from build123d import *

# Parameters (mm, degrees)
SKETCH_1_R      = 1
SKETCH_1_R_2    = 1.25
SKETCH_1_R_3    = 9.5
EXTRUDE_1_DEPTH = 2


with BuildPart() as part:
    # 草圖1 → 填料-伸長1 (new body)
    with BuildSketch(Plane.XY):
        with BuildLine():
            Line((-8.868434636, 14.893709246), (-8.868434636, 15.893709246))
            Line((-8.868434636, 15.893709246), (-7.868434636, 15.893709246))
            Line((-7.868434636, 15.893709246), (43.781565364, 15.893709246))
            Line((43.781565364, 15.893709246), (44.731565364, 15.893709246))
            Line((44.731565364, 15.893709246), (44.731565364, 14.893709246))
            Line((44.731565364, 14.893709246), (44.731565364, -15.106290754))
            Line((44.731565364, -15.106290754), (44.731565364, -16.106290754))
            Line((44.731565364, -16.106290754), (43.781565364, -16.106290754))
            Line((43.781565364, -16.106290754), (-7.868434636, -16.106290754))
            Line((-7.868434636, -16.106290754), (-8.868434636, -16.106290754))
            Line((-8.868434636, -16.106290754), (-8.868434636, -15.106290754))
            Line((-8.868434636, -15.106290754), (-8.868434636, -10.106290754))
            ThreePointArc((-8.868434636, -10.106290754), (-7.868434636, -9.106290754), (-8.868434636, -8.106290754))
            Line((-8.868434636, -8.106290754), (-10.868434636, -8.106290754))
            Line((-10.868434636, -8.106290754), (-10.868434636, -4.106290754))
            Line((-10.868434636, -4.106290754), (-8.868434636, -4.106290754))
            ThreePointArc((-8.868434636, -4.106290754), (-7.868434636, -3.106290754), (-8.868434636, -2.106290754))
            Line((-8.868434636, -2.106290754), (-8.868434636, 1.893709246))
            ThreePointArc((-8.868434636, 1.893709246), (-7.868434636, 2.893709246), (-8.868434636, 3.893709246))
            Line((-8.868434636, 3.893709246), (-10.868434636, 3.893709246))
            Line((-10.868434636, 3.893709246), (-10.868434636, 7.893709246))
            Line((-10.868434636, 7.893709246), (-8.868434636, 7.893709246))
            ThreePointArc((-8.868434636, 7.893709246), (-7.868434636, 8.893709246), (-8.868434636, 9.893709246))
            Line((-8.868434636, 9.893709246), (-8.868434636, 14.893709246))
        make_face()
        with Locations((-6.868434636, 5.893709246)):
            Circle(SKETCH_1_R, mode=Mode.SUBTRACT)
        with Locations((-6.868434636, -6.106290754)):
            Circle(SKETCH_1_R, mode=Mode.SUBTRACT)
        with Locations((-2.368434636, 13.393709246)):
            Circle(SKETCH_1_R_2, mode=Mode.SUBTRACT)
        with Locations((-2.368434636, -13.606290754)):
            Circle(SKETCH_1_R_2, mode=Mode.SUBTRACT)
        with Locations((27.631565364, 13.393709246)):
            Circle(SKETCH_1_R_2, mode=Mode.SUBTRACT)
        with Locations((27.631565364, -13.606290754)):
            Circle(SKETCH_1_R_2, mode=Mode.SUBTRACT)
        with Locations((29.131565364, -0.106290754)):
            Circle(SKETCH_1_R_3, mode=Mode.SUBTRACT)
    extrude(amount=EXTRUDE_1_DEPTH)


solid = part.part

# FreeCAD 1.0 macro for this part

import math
import FreeCAD as App
import Part
import Sketcher
from FreeCAD import Vector

doc = App.newDocument("Part")
body = doc.addObject("PartDesign::Body", "Body")

# Sketch on XY plane
sketch1 = body.newObject("Sketcher::SketchObject", "Sketch")
sketch1.AttachmentSupport = (doc.getObject("XY_Plane"), [""])
sketch1.MapMode = "FlatFace"
sketch1.addGeometry(Part.LineSegment(Vector(44.7, 15.9, 0), Vector(-8.9, 15.9, 0)), False)
sketch1.addGeometry(Part.LineSegment(Vector(-8.9, 15.9, 0), Vector(-8.9, 9.9, 0)), False)
sketch1.addGeometry(Part.ArcOfCircle(Part.Circle(Vector(-8.9, 8.9, 0), Vector(0, 0, 1), 1), math.radians(-90), math.radians(90)), False)
sketch1.addGeometry(Part.LineSegment(Vector(-8.9, 7.9, 0), Vector(-10.9, 7.9, 0)), False)
sketch1.addGeometry(Part.LineSegment(Vector(-10.9, 7.9, 0), Vector(-10.9, 3.9, 0)), False)
sketch1.addGeometry(Part.LineSegment(Vector(-10.9, 3.9, 0), Vector(-8.9, 3.9, 0)), False)
sketch1.addGeometry(Part.ArcOfCircle(Part.Circle(Vector(-8.9, 2.9, 0), Vector(0, 0, 1), 1), math.radians(-90), math.radians(90)), False)
sketch1.addGeometry(Part.LineSegment(Vector(-8.9, 1.9, 0), Vector(-8.9, -2.1, 0)), False)
sketch1.addGeometry(Part.ArcOfCircle(Part.Circle(Vector(-8.9, -3.1, 0), Vector(0, 0, 1), 1), math.radians(-90), math.radians(90)), False)
sketch1.addGeometry(Part.LineSegment(Vector(-8.9, -4.1, 0), Vector(-10.9, -4.1, 0)), False)
sketch1.addGeometry(Part.LineSegment(Vector(-10.9, -4.1, 0), Vector(-10.9, -8.1, 0)), False)
sketch1.addGeometry(Part.LineSegment(Vector(-10.9, -8.1, 0), Vector(-8.9, -8.1, 0)), False)
sketch1.addGeometry(Part.ArcOfCircle(Part.Circle(Vector(-8.9, -9.1, 0), Vector(0, 0, 1), 1), math.radians(-90), math.radians(90)), False)
sketch1.addGeometry(Part.LineSegment(Vector(-8.9, -10.1, 0), Vector(-8.9, -16.1, 0)), False)
sketch1.addGeometry(Part.LineSegment(Vector(-8.9, -16.1, 0), Vector(44.7, -16.1, 0)), False)
sketch1.addGeometry(Part.LineSegment(Vector(44.7, -16.1, 0), Vector(44.7, 15.9, 0)), False)
sketch1.addGeometry(Part.Circle(Vector(27.6, -13.6, 0), Vector(0, 0, 1), 1.2), False)
sketch1.addGeometry(Part.Circle(Vector(-2.4, -13.6, 0), Vector(0, 0, 1), 1.2), False)
sketch1.addGeometry(Part.Circle(Vector(-6.9, -6.1, 0), Vector(0, 0, 1), 1), False)
sketch1.addGeometry(Part.Circle(Vector(29.1, -0.1, 0), Vector(0, 0, 1), 9.5), False)
sketch1.addGeometry(Part.Circle(Vector(27.6, 13.4, 0), Vector(0, 0, 1), 1.2), False)
sketch1.addGeometry(Part.Circle(Vector(-6.9, 5.9, 0), Vector(0, 0, 1), 1), False)
sketch1.addGeometry(Part.Circle(Vector(-2.4, 13.4, 0), Vector(0, 0, 1), 1.2), False)
sketch1.addConstraint(Sketcher.Constraint("Coincident", 0, 2, 1, 1))
sketch1.addConstraint(Sketcher.Constraint("Coincident", 1, 2, 2, 2))
sketch1.addConstraint(Sketcher.Constraint("Tangent", 2, 1, 3, 1))
sketch1.addConstraint(Sketcher.Constraint("Coincident", 3, 2, 4, 1))
sketch1.addConstraint(Sketcher.Constraint("Coincident", 4, 2, 5, 1))
sketch1.addConstraint(Sketcher.Constraint("Tangent", 5, 2, 6, 2))
sketch1.addConstraint(Sketcher.Constraint("Coincident", 6, 1, 7, 1))
sketch1.addConstraint(Sketcher.Constraint("Coincident", 7, 2, 8, 2))
sketch1.addConstraint(Sketcher.Constraint("Tangent", 8, 1, 9, 1))
sketch1.addConstraint(Sketcher.Constraint("Coincident", 9, 2, 10, 1))
sketch1.addConstraint(Sketcher.Constraint("Coincident", 10, 2, 11, 1))
sketch1.addConstraint(Sketcher.Constraint("Tangent", 11, 2, 12, 2))
sketch1.addConstraint(Sketcher.Constraint("Coincident", 12, 1, 13, 1))
sketch1.addConstraint(Sketcher.Constraint("Coincident", 13, 2, 14, 1))
sketch1.addConstraint(Sketcher.Constraint("Coincident", 14, 2, 15, 1))
sketch1.addConstraint(Sketcher.Constraint("Coincident", 15, 2, 0, 1))
sketch1.addConstraint(Sketcher.Constraint("Horizontal", 0))
sketch1.addConstraint(Sketcher.Constraint("Vertical", 1))
sketch1.addConstraint(Sketcher.Constraint("Horizontal", 3))
sketch1.addConstraint(Sketcher.Constraint("Vertical", 4))
sketch1.addConstraint(Sketcher.Constraint("Horizontal", 5))
sketch1.addConstraint(Sketcher.Constraint("Vertical", 7))
sketch1.addConstraint(Sketcher.Constraint("Horizontal", 9))
sketch1.addConstraint(Sketcher.Constraint("Vertical", 10))
sketch1.addConstraint(Sketcher.Constraint("Horizontal", 11))
sketch1.addConstraint(Sketcher.Constraint("Vertical", 13))
sketch1.addConstraint(Sketcher.Constraint("Horizontal", 14))
sketch1.addConstraint(Sketcher.Constraint("Vertical", 15))
sketch1.addConstraint(Sketcher.Constraint("Equal", 2, 6))
sketch1.addConstraint(Sketcher.Constraint("Equal", 6, 8))
sketch1.addConstraint(Sketcher.Constraint("Equal", 8, 12))
sketch1.addConstraint(Sketcher.Constraint("Equal", 16, 17))
sketch1.addConstraint(Sketcher.Constraint("Equal", 12, 18))
sketch1.addConstraint(Sketcher.Constraint("Equal", 17, 20))
sketch1.addConstraint(Sketcher.Constraint("Equal", 18, 21))
sketch1.addConstraint(Sketcher.Constraint("Equal", 20, 22))
sketch1.addConstraint(Sketcher.Constraint("Horizontal", 16, 3, 17, 3))
sketch1.addConstraint(Sketcher.Constraint("Horizontal", 20, 3, 22, 3))
sketch1.addConstraint(Sketcher.Constraint("Vertical", 2, 3, 6, 3))
sketch1.addConstraint(Sketcher.Constraint("Vertical", 6, 3, 8, 3))
sketch1.addConstraint(Sketcher.Constraint("Vertical", 8, 3, 12, 3))
sketch1.addConstraint(Sketcher.Constraint("Vertical", 16, 3, 20, 3))
sketch1.addConstraint(Sketcher.Constraint("Vertical", 18, 3, 21, 3))
sketch1.addConstraint(Sketcher.Constraint("Vertical", 17, 3, 22, 3))
sketch1.addConstraint(Sketcher.Constraint("Vertical", 12, 3, 0, 2))
sketch1.addConstraint(Sketcher.Constraint("Vertical", 5, 2, 6, 1))
sketch1.addConstraint(Sketcher.Constraint("Vertical", 4, 2, 9, 2))
sketch1.addConstraint(Sketcher.Constraint("Vertical", 11, 2, 12, 1))
sketch1.addConstraint(Sketcher.Constraint("Equal", 4, 7))
sketch1.addConstraint(Sketcher.Constraint("Equal", 7, 10))
sketch1.addConstraint(Sketcher.Constraint("Equal", 1, 13))
sketch1.addConstraint(Sketcher.Constraint("Diameter", 18, 2.0))
sketch1.addConstraint(Sketcher.Constraint("Diameter", 19, 19.0))
sketch1.addConstraint(Sketcher.Constraint("Diameter", 16, 2.5))
sketch1.addConstraint(Sketcher.Constraint("DistanceX", 3, 2, 3, 1, 2.0))
sketch1.addConstraint(Sketcher.Constraint("DistanceY", 1, 2, 1, 1, 6.0))
sketch1.addConstraint(Sketcher.Constraint("DistanceY", 4, 2, 4, 1, 4.0))
sketch1.addConstraint(Sketcher.Constraint("DistanceX", 0, 2, 0, 1, 53.6))
sketch1.addConstraint(Sketcher.Constraint("DistanceX", 17, 3, 16, 3, 30.0))
sketch1.addConstraint(Sketcher.Constraint("DistanceX", 8, 3, 18, 3, 2.0))
sketch1.addConstraint(Sketcher.Constraint("DistanceY", 18, 3, 8, 3, 3.0))
sketch1.addConstraint(Sketcher.Constraint("DistanceX", 18, 3, 19, 3, 36.0))
sketch1.addConstraint(Sketcher.Constraint("DistanceY", 18, 3, 19, 3, 6.0))
sketch1.addConstraint(Sketcher.Constraint("DistanceY", 16, 3, 20, 3, 27.0))
sketch1.addConstraint(Sketcher.Constraint("DistanceY", 21, 3, 2, 3, 3.0))
sketch1.addConstraint(Sketcher.Constraint("DistanceX", 12, 3, 16, 3, 36.5))
sketch1.addConstraint(Sketcher.Constraint("DistanceY", 16, 3, 12, 3, 4.5))
sketch1.addConstraint(Sketcher.Constraint("DistanceY", -1, 1, 2, 3, 8.893709))
sketch1.addConstraint(Sketcher.Constraint("DistanceX", 2, 3, -1, 1, 8.868435))
pad1 = body.newObject("PartDesign::Pad", "Pad")
pad1.Profile = sketch1
pad1.Length = 2

doc.recompute()
